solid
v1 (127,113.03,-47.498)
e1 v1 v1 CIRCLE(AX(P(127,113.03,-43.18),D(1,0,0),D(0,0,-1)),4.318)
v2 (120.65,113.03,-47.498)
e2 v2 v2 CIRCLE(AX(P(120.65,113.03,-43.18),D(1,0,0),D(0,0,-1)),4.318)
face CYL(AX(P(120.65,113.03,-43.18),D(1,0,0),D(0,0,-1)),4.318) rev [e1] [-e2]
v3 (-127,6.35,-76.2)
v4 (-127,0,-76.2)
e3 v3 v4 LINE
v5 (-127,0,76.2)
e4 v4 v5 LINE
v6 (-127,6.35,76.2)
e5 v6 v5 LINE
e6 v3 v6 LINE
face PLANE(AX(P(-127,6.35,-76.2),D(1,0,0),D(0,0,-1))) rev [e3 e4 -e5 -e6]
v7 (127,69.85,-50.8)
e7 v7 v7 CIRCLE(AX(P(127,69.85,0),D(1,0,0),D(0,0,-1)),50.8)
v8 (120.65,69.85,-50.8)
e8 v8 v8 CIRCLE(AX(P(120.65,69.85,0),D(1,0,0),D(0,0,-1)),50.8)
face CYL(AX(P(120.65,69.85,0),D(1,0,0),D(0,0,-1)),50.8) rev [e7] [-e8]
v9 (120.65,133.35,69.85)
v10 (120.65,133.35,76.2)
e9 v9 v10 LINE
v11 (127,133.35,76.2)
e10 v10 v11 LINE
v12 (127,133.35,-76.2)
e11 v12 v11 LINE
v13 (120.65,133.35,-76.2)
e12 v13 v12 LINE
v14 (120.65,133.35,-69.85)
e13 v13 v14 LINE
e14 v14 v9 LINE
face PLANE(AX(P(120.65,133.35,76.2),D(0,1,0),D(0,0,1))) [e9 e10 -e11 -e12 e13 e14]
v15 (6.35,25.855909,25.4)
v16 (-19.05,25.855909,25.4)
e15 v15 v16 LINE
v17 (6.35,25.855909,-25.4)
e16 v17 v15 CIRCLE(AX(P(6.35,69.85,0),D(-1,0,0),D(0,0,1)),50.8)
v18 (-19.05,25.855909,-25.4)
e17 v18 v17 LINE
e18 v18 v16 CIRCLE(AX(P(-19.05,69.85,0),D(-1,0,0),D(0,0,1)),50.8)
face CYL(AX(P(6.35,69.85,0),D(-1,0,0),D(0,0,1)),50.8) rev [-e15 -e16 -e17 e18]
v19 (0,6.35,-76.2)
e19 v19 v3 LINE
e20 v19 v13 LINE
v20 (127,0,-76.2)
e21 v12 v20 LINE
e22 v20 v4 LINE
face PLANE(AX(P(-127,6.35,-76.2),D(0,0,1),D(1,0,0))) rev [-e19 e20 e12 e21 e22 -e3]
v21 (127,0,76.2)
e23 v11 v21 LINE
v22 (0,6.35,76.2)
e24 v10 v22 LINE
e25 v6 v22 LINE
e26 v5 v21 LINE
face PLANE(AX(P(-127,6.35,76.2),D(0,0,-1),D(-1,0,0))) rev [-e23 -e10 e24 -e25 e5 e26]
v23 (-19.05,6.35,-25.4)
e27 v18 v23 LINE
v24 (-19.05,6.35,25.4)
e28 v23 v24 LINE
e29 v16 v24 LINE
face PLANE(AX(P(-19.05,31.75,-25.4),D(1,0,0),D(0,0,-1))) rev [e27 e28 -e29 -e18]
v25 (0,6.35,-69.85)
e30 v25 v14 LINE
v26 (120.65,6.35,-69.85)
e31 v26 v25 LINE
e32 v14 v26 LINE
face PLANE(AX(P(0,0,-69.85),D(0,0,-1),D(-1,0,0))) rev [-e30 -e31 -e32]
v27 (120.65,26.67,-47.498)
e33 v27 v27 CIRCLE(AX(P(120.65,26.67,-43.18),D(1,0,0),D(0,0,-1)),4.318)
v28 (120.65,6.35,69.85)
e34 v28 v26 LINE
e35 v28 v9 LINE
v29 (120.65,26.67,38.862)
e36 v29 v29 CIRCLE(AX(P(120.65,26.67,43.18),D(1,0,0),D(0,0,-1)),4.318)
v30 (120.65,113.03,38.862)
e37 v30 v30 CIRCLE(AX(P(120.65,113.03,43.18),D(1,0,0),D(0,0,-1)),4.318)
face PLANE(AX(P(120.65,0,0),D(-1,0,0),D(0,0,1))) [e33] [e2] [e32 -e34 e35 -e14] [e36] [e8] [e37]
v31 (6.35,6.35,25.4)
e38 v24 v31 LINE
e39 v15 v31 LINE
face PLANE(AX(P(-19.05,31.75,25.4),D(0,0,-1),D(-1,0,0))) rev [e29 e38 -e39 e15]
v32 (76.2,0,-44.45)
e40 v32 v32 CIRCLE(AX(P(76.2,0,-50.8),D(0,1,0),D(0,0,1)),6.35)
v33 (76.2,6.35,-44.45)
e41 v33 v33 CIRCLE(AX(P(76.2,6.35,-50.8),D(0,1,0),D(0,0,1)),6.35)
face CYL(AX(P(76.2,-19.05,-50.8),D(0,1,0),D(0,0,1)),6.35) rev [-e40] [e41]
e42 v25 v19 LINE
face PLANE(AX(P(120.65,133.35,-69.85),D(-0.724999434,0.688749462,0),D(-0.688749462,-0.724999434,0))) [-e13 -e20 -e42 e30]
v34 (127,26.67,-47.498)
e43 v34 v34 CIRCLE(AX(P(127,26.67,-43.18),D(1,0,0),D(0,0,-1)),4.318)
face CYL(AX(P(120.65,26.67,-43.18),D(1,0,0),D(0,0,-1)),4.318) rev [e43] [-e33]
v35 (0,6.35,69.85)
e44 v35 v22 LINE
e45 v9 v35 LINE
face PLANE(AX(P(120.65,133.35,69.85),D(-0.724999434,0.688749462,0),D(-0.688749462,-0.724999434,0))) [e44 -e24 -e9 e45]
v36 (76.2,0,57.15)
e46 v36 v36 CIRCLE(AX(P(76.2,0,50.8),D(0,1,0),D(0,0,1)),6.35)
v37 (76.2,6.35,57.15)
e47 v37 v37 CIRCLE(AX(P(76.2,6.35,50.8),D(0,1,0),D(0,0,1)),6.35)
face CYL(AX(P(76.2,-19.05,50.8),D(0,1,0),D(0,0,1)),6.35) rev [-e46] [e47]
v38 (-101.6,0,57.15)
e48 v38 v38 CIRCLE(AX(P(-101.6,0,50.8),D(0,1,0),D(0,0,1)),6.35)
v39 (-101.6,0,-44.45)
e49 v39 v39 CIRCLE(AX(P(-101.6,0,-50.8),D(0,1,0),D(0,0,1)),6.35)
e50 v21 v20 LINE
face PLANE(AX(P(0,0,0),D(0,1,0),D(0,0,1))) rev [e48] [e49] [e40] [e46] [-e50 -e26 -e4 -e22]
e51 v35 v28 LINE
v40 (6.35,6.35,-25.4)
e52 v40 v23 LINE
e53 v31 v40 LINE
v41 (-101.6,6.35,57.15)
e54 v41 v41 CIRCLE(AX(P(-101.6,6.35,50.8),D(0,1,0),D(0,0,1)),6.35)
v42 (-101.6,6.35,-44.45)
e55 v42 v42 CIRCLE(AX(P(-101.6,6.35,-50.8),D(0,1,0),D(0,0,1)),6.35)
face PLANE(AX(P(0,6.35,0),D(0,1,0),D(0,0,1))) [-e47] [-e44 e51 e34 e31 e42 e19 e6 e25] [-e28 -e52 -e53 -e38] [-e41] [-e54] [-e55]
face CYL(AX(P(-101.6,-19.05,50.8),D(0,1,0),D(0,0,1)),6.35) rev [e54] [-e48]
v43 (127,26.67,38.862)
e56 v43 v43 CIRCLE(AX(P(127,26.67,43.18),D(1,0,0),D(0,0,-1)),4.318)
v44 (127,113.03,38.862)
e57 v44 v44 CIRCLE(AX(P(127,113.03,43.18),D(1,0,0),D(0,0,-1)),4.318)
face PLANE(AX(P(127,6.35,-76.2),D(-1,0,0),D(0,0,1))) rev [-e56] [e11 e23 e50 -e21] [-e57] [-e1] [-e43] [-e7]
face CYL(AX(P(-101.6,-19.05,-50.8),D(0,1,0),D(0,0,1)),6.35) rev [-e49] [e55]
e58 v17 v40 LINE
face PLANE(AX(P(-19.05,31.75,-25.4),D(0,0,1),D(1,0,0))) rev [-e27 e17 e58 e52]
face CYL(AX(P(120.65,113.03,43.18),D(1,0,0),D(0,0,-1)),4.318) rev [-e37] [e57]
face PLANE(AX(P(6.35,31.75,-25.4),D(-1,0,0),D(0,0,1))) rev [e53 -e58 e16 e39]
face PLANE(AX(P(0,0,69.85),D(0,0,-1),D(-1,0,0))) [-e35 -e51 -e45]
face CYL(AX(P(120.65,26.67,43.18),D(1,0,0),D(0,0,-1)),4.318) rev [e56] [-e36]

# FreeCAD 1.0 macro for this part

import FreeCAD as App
import Part
import Sketcher
Q = App.Units.Quantity

doc = App.newDocument("Part")
body = doc.addObject("PartDesign::Body", "Body")

sketch1 = body.newObject("Sketcher::SketchObject", "Sketch")
sketch1.AttachmentSupport = (doc.getObject("XZ_Plane"), [""])
sketch1.MapMode = "FlatFace"
sketch1.addGeometry([
    Part.LineSegment(App.Vector(-127, -76, 0), App.Vector(-127, 76, 0)),
    Part.LineSegment(App.Vector(-127, 76, 0), App.Vector(127, 76, 0)),
    Part.LineSegment(App.Vector(127, 76, 0), App.Vector(127, -76, 0)),
    Part.LineSegment(App.Vector(127, -76, 0), App.Vector(-127, -76, 0)),
], False)
sketch1.addConstraint([
    Sketcher.Constraint("Coincident", 0, 2, 1, 1),
    Sketcher.Constraint("Coincident", 1, 2, 2, 1),
    Sketcher.Constraint("Coincident", 2, 2, 3, 1),
    Sketcher.Constraint("Coincident", 3, 2, 0, 1),
    Sketcher.Constraint("Vertical", 0),
    Sketcher.Constraint("Horizontal", 1),
    Sketcher.Constraint("Vertical", 2),
    Sketcher.Constraint("Horizontal", 3),
    Sketcher.Constraint("Symmetric", 0, 2, 2, 2, -1, 1),
    Sketcher.Constraint("DistanceX", 1, 1, 1, 2, Q("10 in")),
    Sketcher.Constraint("DistanceY", 0, 1, 0, 2, Q("6 in")),
])
pad1 = body.newObject("PartDesign::Pad", "Pad")
pad1.Profile = sketch1
pad1.Length = Q("0.25 in")
pad1.Reversed = True

sketch2 = body.newObject("Sketcher::SketchObject", "Sketch001")
sketch2.AttachmentSupport = (doc.getObject("YZ_Plane"), [""])
sketch2.MapMode = "FlatFace"
sketch2.AttachmentOffset = App.Placement(App.Vector(0, 0, 5 * 25.4), App.Rotation())
sketch2.addGeometry([
    Part.LineSegment(App.Vector(133.3, 76.2, 0), App.Vector(6.3, 76.2, 0)),
    Part.LineSegment(App.Vector(6.3, 76.2, 0), App.Vector(6.3, -76.2, 0)),
    Part.LineSegment(App.Vector(6.3, -76.2, 0), App.Vector(133.3, -76.2, 0)),
    Part.LineSegment(App.Vector(133.3, -76.2, 0), App.Vector(133.3, 76.2, 0)),
    Part.Circle(App.Vector(26.7, 43.2, 0), App.Vector(0, 0, 1), 4.3),
    Part.Circle(App.Vector(69.8, 0, 0), App.Vector(0, 0, 1), 50.8),
    Part.Circle(App.Vector(26.7, -43.2, 0), App.Vector(0, 0, 1), 4.3),
    Part.Circle(App.Vector(113, 43.2, 0), App.Vector(0, 0, 1), 4.3),
    Part.Circle(App.Vector(113, -43.2, 0), App.Vector(0, 0, 1), 4.3),
], False)
sketch2.addConstraint([
    Sketcher.Constraint("Coincident", 0, 2, 1, 1),
    Sketcher.Constraint("Coincident", 1, 2, 2, 1),
    Sketcher.Constraint("Coincident", 2, 2, 3, 1),
    Sketcher.Constraint("Coincident", 3, 2, 0, 1),
    Sketcher.Constraint("Horizontal", 0),
    Sketcher.Constraint("Vertical", 1),
    Sketcher.Constraint("Horizontal", 2),
    Sketcher.Constraint("Vertical", 3),
    Sketcher.Constraint("Equal", 4, 6),
    Sketcher.Constraint("Equal", 6, 7),
    Sketcher.Constraint("Equal", 7, 8),
    Sketcher.Constraint("Symmetric", 4, 3, 6, 3, -1),
    Sketcher.Constraint("Symmetric", 7, 3, 8, 3, -1),
    Sketcher.Constraint("PointOnObject", 5, 3, -1),
    Sketcher.Constraint("Horizontal", 4, 3, 7, 3),
    Sketcher.Constraint("Diameter", 5, Q("4 in")),
    Sketcher.Constraint("Diameter", 4, Q("0.34 in")),
    Sketcher.Constraint("DistanceX", 0, 2, 0, 1, Q("5 in")),
    Sketcher.Constraint("DistanceY", 1, 2, 1, 1, Q("6 in")),
    Sketcher.Constraint("DistanceY", -1, 1, 0, 2, Q("3 in")),
    Sketcher.Constraint("DistanceY", -1, 1, 4, 3, Q("1.7 in")),
    Sketcher.Constraint("DistanceX", 4, 3, 5, 3, Q("1.7 in")),
    Sketcher.Constraint("DistanceX", 5, 3, 7, 3, Q("1.7 in")),
    Sketcher.Constraint("DistanceX", 0, 2, 4, 3, Q("0.8 in")),
    Sketcher.Constraint("DistanceX", -1, 1, 4, 3, Q("1.05 in")),
])
pad2 = body.newObject("PartDesign::Pad", "Pad001")
pad2.Profile = sketch2
pad2.Length = Q("0.25 in")
pad2.Reversed = True

sketch3 = body.newObject("Sketcher::SketchObject", "Sketch002")
sketch3.AttachmentSupport = (doc.getObject("XY_Plane"), [""])
sketch3.MapMode = "FlatFace"
sketch3.AttachmentOffset = App.Placement(App.Vector(0, 0, 3 * 25.4), App.Rotation())
sketch3.addGeometry([
    Part.LineSegment(App.Vector(121, 133, 0), App.Vector(0, 6, 0)),
    Part.LineSegment(App.Vector(0, 6, 0), App.Vector(121, 6, 0)),
    Part.LineSegment(App.Vector(121, 6, 0), App.Vector(121, 133, 0)),
], False)
sketch3.addConstraint([
    Sketcher.Constraint("Coincident", 0, 2, 1, 1),
    Sketcher.Constraint("Coincident", 1, 2, 2, 1),
    Sketcher.Constraint("Coincident", 2, 2, 0, 1),
    Sketcher.Constraint("Horizontal", 1),
    Sketcher.Constraint("Vertical", 2),
    Sketcher.Constraint("PointOnObject", 0, 2, -2),
    Sketcher.Constraint("DistanceY", 2, 1, 2, 2, Q("5 in")),
    Sketcher.Constraint("DistanceX", 1, 1, 1, 2, Q("4.75 in")),
    Sketcher.Constraint("DistanceY", -1, 1, 0, 2, Q("0.25 in")),
])
pad3 = body.newObject("PartDesign::Pad", "Pad002")
pad3.Profile = sketch3
pad3.Length = Q("0.25 in")
pad3.Reversed = True

sketch4 = body.newObject("Sketcher::SketchObject", "Sketch003")
sketch4.AttachmentSupport = (doc.getObject("XY_Plane"), [""])
sketch4.MapMode = "FlatFace"
sketch4.AttachmentOffset = App.Placement(App.Vector(0, 0, -3 * 25.4), App.Rotation())
sketch4.addGeometry([
    Part.LineSegment(App.Vector(0, 6, 0), App.Vector(121, 133, 0)),
    Part.LineSegment(App.Vector(121, 133, 0), App.Vector(121, 6, 0)),
    Part.LineSegment(App.Vector(121, 6, 0), App.Vector(0, 6, 0)),
], False)
sketch4.addConstraint([
    Sketcher.Constraint("Coincident", 0, 2, 1, 1),
    Sketcher.Constraint("Coincident", 1, 2, 2, 1),
    Sketcher.Constraint("Coincident", 2, 2, 0, 1),
    Sketcher.Constraint("Vertical", 1),
    Sketcher.Constraint("Horizontal", 2),
    Sketcher.Constraint("PointOnObject", 2, 2, -2),
    Sketcher.Constraint("DistanceY", 1, 2, 1, 1, Q("5 in")),
    Sketcher.Constraint("DistanceX", 2, 2, 2, 1, Q("4.75 in")),
    Sketcher.Constraint("DistanceY", -1, 1, 0, 2, Q("5.25 in")),
])
pad4 = body.newObject("PartDesign::Pad", "Pad003")
pad4.Profile = sketch4
pad4.Length = Q("0.25 in")

sketch5 = body.newObject("Sketcher::SketchObject", "Sketch004")
sketch5.AttachmentSupport = (doc.getObject("XZ_Plane"), [""])
sketch5.MapMode = "FlatFace"
sketch5.AttachmentOffset = App.Placement(App.Vector(0, 0, -0.25 * 25.4), App.Rotation())
sketch5.addGeometry([
    Part.LineSegment(App.Vector(-19, -25, 0), App.Vector(-19, 25, 0)),
    Part.LineSegment(App.Vector(-19, 25, 0), App.Vector(6, 25, 0)),
    Part.LineSegment(App.Vector(6, 25, 0), App.Vector(6, -25, 0)),
    Part.LineSegment(App.Vector(6, -25, 0), App.Vector(-19, -25, 0)),
], False)
sketch5.addConstraint([
    Sketcher.Constraint("Coincident", 0, 2, 1, 1),
    Sketcher.Constraint("Coincident", 1, 2, 2, 1),
    Sketcher.Constraint("Coincident", 2, 2, 3, 1),
    Sketcher.Constraint("Coincident", 3, 2, 0, 1),
    Sketcher.Constraint("Vertical", 0),
    Sketcher.Constraint("Horizontal", 1),
    Sketcher.Constraint("Vertical", 2),
    Sketcher.Constraint("Horizontal", 3),
    Sketcher.Constraint("DistanceX", 1, 1, 1, 2, Q("1 in")),
    Sketcher.Constraint("DistanceY", 0, 1, 0, 2, Q("2 in")),
    Sketcher.Constraint("DistanceY", -1, 1, 0, 2, Q("1 in")),
    Sketcher.Constraint("DistanceX", 0, 2, -1, 1, Q("0.75 in")),
])
pad5 = body.newObject("PartDesign::Pad", "Pad004")
pad5.Profile = sketch5
pad5.Length = Q("1 in")
pad5.Reversed = True

sketch6 = body.newObject("Sketcher::SketchObject", "Sketch005")
sketch6.AttachmentSupport = (doc.getObject("YZ_Plane"), [""])
sketch6.MapMode = "FlatFace"
sketch6.AttachmentOffset = App.Placement(App.Vector(0, 0, -0.75 * 25.4), App.Rotation())
sketch6.addGeometry(Part.Circle(App.Vector(70, 0, 0), App.Vector(0, 0, 1), 51), False)
sketch6.addConstraint([
    Sketcher.Constraint("PointOnObject", 0, 3, -1),
    Sketcher.Constraint("Diameter", 0, Q("4 in")),
    Sketcher.Constraint("DistanceX", -1, 1, 0, 3, Q("2.75 in")),
])
pocket1 = body.newObject("PartDesign::Pocket", "Pocket")
pocket1.Profile = sketch6
pocket1.Length = Q("1 in")
pocket1.Reversed = True

sketch7 = body.newObject("Sketcher::SketchObject", "Sketch006")
sketch7.AttachmentSupport = (doc.getObject("XZ_Plane"), [""])
sketch7.MapMode = "FlatFace"
sketch7.AttachmentOffset = App.Placement(App.Vector(0, 0, -0.25 * 25.4), App.Rotation())
sketch7.addGeometry([
    Part.Circle(App.Vector(-102, -51, 0), App.Vector(0, 0, 1), 6),
    Part.Circle(App.Vector(-102, 51, 0), App.Vector(0, 0, 1), 6),
    Part.Circle(App.Vector(76, 51, 0), App.Vector(0, 0, 1), 6),
    Part.Circle(App.Vector(76, -51, 0), App.Vector(0, 0, 1), 6),
], False)
sketch7.addConstraint([
    Sketcher.Constraint("Equal", 0, 1),
    Sketcher.Constraint("Equal", 1, 2),
    Sketcher.Constraint("Equal", 2, 3),
    Sketcher.Constraint("Symmetric", 0, 3, 1, 3, -1),
    Sketcher.Constraint("Symmetric", 2, 3, 3, 3, -1),
    Sketcher.Constraint("Horizontal", 1, 3, 2, 3),
    Sketcher.Constraint("Diameter", 0, Q("0.5 in")),
    Sketcher.Constraint("DistanceX", 0, 3, -1, 1, Q("4 in")),
    Sketcher.Constraint("DistanceY", 0, 3, -1, 1, Q("2 in")),
    Sketcher.Constraint("DistanceX", -1, 1, 2, 3, Q("3 in")),
])
pocket2 = body.newObject("PartDesign::Pocket", "Pocket001")
pocket2.Profile = sketch7
pocket2.Length = Q("1 in")
pocket2.Reversed = True

doc.recompute()
